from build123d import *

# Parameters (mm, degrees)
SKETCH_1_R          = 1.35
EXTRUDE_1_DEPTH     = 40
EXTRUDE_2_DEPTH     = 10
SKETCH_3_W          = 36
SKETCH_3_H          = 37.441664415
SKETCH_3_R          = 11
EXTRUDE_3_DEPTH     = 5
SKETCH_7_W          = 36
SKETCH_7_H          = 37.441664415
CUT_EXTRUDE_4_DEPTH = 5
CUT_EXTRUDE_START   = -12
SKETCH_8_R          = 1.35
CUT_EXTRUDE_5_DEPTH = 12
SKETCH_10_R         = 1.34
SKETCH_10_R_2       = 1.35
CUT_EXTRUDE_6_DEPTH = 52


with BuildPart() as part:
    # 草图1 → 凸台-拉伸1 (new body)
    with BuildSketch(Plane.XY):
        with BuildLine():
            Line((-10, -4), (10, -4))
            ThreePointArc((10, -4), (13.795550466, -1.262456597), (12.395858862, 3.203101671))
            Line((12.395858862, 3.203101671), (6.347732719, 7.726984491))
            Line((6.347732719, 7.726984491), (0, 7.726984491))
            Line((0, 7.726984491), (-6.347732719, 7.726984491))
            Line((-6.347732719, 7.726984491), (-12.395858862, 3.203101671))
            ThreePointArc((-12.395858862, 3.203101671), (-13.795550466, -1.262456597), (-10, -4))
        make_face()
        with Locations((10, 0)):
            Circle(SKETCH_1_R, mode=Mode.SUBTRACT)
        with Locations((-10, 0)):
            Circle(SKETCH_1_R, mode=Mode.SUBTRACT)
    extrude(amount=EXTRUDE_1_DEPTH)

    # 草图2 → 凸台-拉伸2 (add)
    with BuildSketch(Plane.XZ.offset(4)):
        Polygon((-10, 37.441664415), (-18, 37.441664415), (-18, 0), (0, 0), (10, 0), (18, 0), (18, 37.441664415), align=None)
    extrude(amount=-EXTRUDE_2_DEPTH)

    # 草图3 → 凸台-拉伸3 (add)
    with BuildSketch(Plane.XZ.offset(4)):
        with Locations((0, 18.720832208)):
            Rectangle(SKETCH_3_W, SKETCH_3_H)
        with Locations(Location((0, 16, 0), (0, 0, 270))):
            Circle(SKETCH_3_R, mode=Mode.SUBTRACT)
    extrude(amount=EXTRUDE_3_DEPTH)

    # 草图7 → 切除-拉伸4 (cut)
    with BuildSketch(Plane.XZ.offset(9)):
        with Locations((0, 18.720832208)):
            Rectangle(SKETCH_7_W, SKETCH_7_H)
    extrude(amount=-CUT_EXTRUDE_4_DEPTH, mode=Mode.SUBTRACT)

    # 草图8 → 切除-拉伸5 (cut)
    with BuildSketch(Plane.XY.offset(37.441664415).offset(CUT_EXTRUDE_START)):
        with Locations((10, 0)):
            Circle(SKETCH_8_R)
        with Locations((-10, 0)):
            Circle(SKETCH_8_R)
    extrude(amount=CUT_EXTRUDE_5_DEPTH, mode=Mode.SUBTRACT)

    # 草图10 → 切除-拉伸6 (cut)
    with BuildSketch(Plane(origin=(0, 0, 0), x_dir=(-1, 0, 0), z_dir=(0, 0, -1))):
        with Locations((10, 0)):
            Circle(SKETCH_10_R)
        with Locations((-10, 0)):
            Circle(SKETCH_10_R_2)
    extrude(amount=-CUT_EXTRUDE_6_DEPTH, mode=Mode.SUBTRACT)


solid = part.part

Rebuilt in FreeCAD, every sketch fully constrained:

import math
import FreeCAD as App
import Part
import Sketcher

doc = App.newDocument("Part")
body = doc.addObject("PartDesign::Body", "Body")

sketch1 = body.newObject("Sketcher::SketchObject", "Sketch")
sketch1.AttachmentSupport = (doc.getObject("XY_Plane"), [""])
sketch1.MapMode = "FlatFace"
sketch1.addGeometry(Part.LineSegment(App.Vector(-10, -4, 0), App.Vector(10, -4, 0)), False)
sketch1.addGeometry(Part.ArcOfCircle(Part.Circle(App.Vector(10, 0, 0), App.Vector(0, 0, 1), 4), math.radians(-90), math.radians(53.204213)), False)
sketch1.addGeometry(Part.LineSegment(App.Vector(12.395859, 3.203102, 0), App.Vector(6.347733, 7.726984, 0)), False)
sketch1.addGeometry(Part.LineSegment(App.Vector(6.347733, 7.726984, 0), App.Vector(-6.347733, 7.726984, 0)), False)
sketch1.addGeometry(Part.LineSegment(App.Vector(-6.347733, 7.726984, 0), App.Vector(-12.395859, 3.203102, 0)), False)
sketch1.addGeometry(Part.ArcOfCircle(Part.Circle(App.Vector(-10, 0, 0), App.Vector(0, 0, 1), 4), math.radians(126.795787), math.radians(270)), False)
sketch1.addGeometry(Part.Circle(App.Vector(-10, 0, 0), App.Vector(0, 0, 1), 1.35), False)
sketch1.addGeometry(Part.Circle(App.Vector(10, 0, 0), App.Vector(0, 0, 1), 1.35), False)
sketch1.addConstraint(Sketcher.Constraint("Tangent", 0, 2, 1, 1))
sketch1.addConstraint(Sketcher.Constraint("Tangent", 1, 2, 2, 1))
sketch1.addConstraint(Sketcher.Constraint("Coincident", 2, 2, 3, 1))
sketch1.addConstraint(Sketcher.Constraint("Coincident", 3, 2, 4, 1))
sketch1.addConstraint(Sketcher.Constraint("Tangent", 4, 2, 5, 1))
sketch1.addConstraint(Sketcher.Constraint("Tangent", 5, 2, 0, 1))
sketch1.addConstraint(Sketcher.Constraint("Horizontal", 0))
sketch1.addConstraint(Sketcher.Constraint("Horizontal", 3))
sketch1.addConstraint(Sketcher.Constraint("Coincident", 6, 3, 5, 3))
sketch1.addConstraint(Sketcher.Constraint("Coincident", 7, 3, 1, 3))
sketch1.addConstraint(Sketcher.Constraint("Equal", 1, 5))
sketch1.addConstraint(Sketcher.Constraint("Equal", 6, 7))
sketch1.addConstraint(Sketcher.Constraint("Symmetric", 1, 3, 5, 3, -1, 1))
sketch1.addConstraint(Sketcher.Constraint("Horizontal", 1, 2, 4, 2))
sketch1.addConstraint(Sketcher.Constraint("Radius", 1, 4.0))
sketch1.addConstraint(Sketcher.Constraint("Diameter", 6, 2.7))
sketch1.addConstraint(Sketcher.Constraint("DistanceX", 0, 1, 0, 2, 20.0))
sketch1.addConstraint(Sketcher.Constraint("DistanceY", -1, 1, 1, 2, 3.203102))
sketch1.addConstraint(Sketcher.Constraint("DistanceX", 3, 2, 3, 1, 12.695465))
pad1 = body.newObject("PartDesign::Pad", "Pad")
pad1.Profile = sketch1
pad1.Length = 40

sketch2 = body.newObject("Sketcher::SketchObject", "Sketch001")
sketch2.AttachmentSupport = (doc.getObject("XZ_Plane"), [""])
sketch2.MapMode = "FlatFace"
sketch2.AttachmentOffset = App.Placement(App.Vector(0, 0, 4), App.Rotation())
sketch2.addGeometry(Part.LineSegment(App.Vector(-18, 37.441664, 0), App.Vector(-18, 0, 0)), False)
sketch2.addGeometry(Part.LineSegment(App.Vector(-18, 0, 0), App.Vector(18, 0, 0)), False)
sketch2.addGeometry(Part.LineSegment(App.Vector(18, 0, 0), App.Vector(18, 37.441664, 0)), False)
sketch2.addGeometry(Part.LineSegment(App.Vector(18, 37.441664, 0), App.Vector(-18, 37.441664, 0)), False)
sketch2.addConstraint(Sketcher.Constraint("Coincident", 0, 2, 1, 1))
sketch2.addConstraint(Sketcher.Constraint("Coincident", 1, 2, 2, 1))
sketch2.addConstraint(Sketcher.Constraint("Coincident", 2, 2, 3, 1))
sketch2.addConstraint(Sketcher.Constraint("Coincident", 3, 2, 0, 1))
sketch2.addConstraint(Sketcher.Constraint("Vertical", 0))
sketch2.addConstraint(Sketcher.Constraint("Horizontal", 1))
sketch2.addConstraint(Sketcher.Constraint("Vertical", 2))
sketch2.addConstraint(Sketcher.Constraint("Horizontal", 3))
sketch2.addConstraint(Sketcher.Constraint("Symmetric", 0, 2, 1, 2, -1, 1))
sketch2.addConstraint(Sketcher.Constraint("DistanceX", 1, 1, 1, 2, 36.0))
sketch2.addConstraint(Sketcher.Constraint("DistanceY", 0, 2, 0, 1, 37.441664))
pad2 = body.newObject("PartDesign::Pad", "Pad001")
pad2.Profile = sketch2
pad2.Length = 10
pad2.Reversed = True

sketch3 = body.newObject("Sketcher::SketchObject", "Sketch002")
sketch3.AttachmentSupport = (doc.getObject("XZ_Plane"), [""])
sketch3.MapMode = "FlatFace"
sketch3.AttachmentOffset = App.Placement(App.Vector(0, 0, 4), App.Rotation())
sketch3.addGeometry(Part.LineSegment(App.Vector(-18, 37.441664, 0), App.Vector(-18, 0, 0)), False)
sketch3.addGeometry(Part.LineSegment(App.Vector(-18, 0, 0), App.Vector(18, 0, 0)), False)
sketch3.addGeometry(Part.LineSegment(App.Vector(18, 0, 0), App.Vector(18, 37.441664, 0)), False)
sketch3.addGeometry(Part.LineSegment(App.Vector(18, 37.441664, 0), App.Vector(-18, 37.441664, 0)), False)
sketch3.addGeometry(Part.Circle(App.Vector(0, 16, 0), App.Vector(0, 0, 1), 11), False)
sketch3.addConstraint(Sketcher.Constraint("Coincident", 0, 2, 1, 1))
sketch3.addConstraint(Sketcher.Constraint("Coincident", 1, 2, 2, 1))
sketch3.addConstraint(Sketcher.Constraint("Coincident", 2, 2, 3, 1))
sketch3.addConstraint(Sketcher.Constraint("Coincident", 3, 2, 0, 1))
sketch3.addConstraint(Sketcher.Constraint("Vertical", 0))
sketch3.addConstraint(Sketcher.Constraint("Horizontal", 1))
sketch3.addConstraint(Sketcher.Constraint("Vertical", 2))
sketch3.addConstraint(Sketcher.Constraint("Horizontal", 3))
sketch3.addConstraint(Sketcher.Constraint("Symmetric", 0, 2, 1, 2, -1, 1))
sketch3.addConstraint(Sketcher.Constraint("PointOnObject", 4, 3, -2))
sketch3.addConstraint(Sketcher.Constraint("Diameter", 4, 22.0))
sketch3.addConstraint(Sketcher.Constraint("DistanceX", 1, 1, 1, 2, 36.0))
sketch3.addConstraint(Sketcher.Constraint("DistanceY", -1, 1, 4, 3, 16.0))
sketch3.addConstraint(Sketcher.Constraint("DistanceY", 0, 2, 0, 1, 37.441664))
pad3 = body.newObject("PartDesign::Pad", "Pad002")
pad3.Profile = sketch3
pad3.Length = 5

sketch4 = body.newObject("Sketcher::SketchObject", "Sketch003")
sketch4.AttachmentSupport = (doc.getObject("XZ_Plane"), [""])
sketch4.MapMode = "FlatFace"
sketch4.AttachmentOffset = App.Placement(App.Vector(0, 0, 9), App.Rotation())
sketch4.addGeometry(Part.LineSegment(App.Vector(-18, 37.441664, 0), App.Vector(-18, 0, 0)), False)
sketch4.addGeometry(Part.LineSegment(App.Vector(-18, 0, 0), App.Vector(18, 0, 0)), False)
sketch4.addGeometry(Part.LineSegment(App.Vector(18, 0, 0), App.Vector(18, 37.441664, 0)), False)
sketch4.addGeometry(Part.LineSegment(App.Vector(18, 37.441664, 0), App.Vector(-18, 37.441664, 0)), False)
sketch4.addConstraint(Sketcher.Constraint("Coincident", 0, 2, 1, 1))
sketch4.addConstraint(Sketcher.Constraint("Coincident", 1, 2, 2, 1))
sketch4.addConstraint(Sketcher.Constraint("Coincident", 2, 2, 3, 1))
sketch4.addConstraint(Sketcher.Constraint("Coincident", 3, 2, 0, 1))
sketch4.addConstraint(Sketcher.Constraint("Vertical", 0))
sketch4.addConstraint(Sketcher.Constraint("Horizontal", 1))
sketch4.addConstraint(Sketcher.Constraint("Vertical", 2))
sketch4.addConstraint(Sketcher.Constraint("Horizontal", 3))
sketch4.addConstraint(Sketcher.Constraint("Symmetric", 0, 2, 1, 2, -1, 1))
sketch4.addConstraint(Sketcher.Constraint("DistanceX", 1, 1, 1, 2, 36.0))
sketch4.addConstraint(Sketcher.Constraint("DistanceY", 0, 2, 0, 1, 37.441664))
pocket1 = body.newObject("PartDesign::Pocket", "Pocket")
pocket1.Profile = sketch4
pocket1.Length = 5

sketch5 = body.newObject("Sketcher::SketchObject", "Sketch004")
sketch5.AttachmentSupport = (doc.getObject("XY_Plane"), [""])
sketch5.MapMode = "FlatFace"
sketch5.AttachmentOffset = App.Placement(App.Vector(0, 0, 25.441664), App.Rotation())
sketch5.addGeometry(Part.Circle(App.Vector(10, 0, 0), App.Vector(0, 0, 1), 1.35), False)
sketch5.addGeometry(Part.Circle(App.Vector(-10, 0, 0), App.Vector(0, 0, 1), 1.35), False)
sketch5.addConstraint(Sketcher.Constraint("Equal", 0, 1))
sketch5.addConstraint(Sketcher.Constraint("Symmetric", 0, 3, 1, 3, -1, 1))
sketch5.addConstraint(Sketcher.Constraint("PointOnObject", 0, 3, -1))
sketch5.addConstraint(Sketcher.Constraint("Diameter", 0, 2.7))
sketch5.addConstraint(Sketcher.Constraint("DistanceX", -1, 1, 0, 3, 10.0))
pocket2 = body.newObject("PartDesign::Pocket", "Pocket001")
pocket2.Profile = sketch5
pocket2.Length = 12
pocket2.Reversed = True

sketch6 = body.newObject("Sketcher::SketchObject", "Sketch005")
sketch6.AttachmentSupport = (doc.getObject("XY_Plane"), [""])
sketch6.MapMode = "FlatFace"
sketch6.addGeometry(Part.Circle(App.Vector(-10, 0, 0), App.Vector(0, 0, 1), 1.34), False)
sketch6.addGeometry(Part.Circle(App.Vector(10, 0, 0), App.Vector(0, 0, 1), 1.35), False)
sketch6.addConstraint(Sketcher.Constraint("Symmetric", 0, 3, 1, 3, -1, 1))
sketch6.addConstraint(Sketcher.Constraint("PointOnObject", 0, 3, -1))
sketch6.addConstraint(Sketcher.Constraint("Diameter", 1, 2.7))
sketch6.addConstraint(Sketcher.Constraint("Diameter", 0, 2.68))
sketch6.addConstraint(Sketcher.Constraint("DistanceX", 0, 3, -1, 1, 10.0))
pocket3 = body.newObject("PartDesign::Pocket", "Pocket002")
pocket3.Profile = sketch6
pocket3.Length = 52
pocket3.Reversed = True

doc.recompute()
